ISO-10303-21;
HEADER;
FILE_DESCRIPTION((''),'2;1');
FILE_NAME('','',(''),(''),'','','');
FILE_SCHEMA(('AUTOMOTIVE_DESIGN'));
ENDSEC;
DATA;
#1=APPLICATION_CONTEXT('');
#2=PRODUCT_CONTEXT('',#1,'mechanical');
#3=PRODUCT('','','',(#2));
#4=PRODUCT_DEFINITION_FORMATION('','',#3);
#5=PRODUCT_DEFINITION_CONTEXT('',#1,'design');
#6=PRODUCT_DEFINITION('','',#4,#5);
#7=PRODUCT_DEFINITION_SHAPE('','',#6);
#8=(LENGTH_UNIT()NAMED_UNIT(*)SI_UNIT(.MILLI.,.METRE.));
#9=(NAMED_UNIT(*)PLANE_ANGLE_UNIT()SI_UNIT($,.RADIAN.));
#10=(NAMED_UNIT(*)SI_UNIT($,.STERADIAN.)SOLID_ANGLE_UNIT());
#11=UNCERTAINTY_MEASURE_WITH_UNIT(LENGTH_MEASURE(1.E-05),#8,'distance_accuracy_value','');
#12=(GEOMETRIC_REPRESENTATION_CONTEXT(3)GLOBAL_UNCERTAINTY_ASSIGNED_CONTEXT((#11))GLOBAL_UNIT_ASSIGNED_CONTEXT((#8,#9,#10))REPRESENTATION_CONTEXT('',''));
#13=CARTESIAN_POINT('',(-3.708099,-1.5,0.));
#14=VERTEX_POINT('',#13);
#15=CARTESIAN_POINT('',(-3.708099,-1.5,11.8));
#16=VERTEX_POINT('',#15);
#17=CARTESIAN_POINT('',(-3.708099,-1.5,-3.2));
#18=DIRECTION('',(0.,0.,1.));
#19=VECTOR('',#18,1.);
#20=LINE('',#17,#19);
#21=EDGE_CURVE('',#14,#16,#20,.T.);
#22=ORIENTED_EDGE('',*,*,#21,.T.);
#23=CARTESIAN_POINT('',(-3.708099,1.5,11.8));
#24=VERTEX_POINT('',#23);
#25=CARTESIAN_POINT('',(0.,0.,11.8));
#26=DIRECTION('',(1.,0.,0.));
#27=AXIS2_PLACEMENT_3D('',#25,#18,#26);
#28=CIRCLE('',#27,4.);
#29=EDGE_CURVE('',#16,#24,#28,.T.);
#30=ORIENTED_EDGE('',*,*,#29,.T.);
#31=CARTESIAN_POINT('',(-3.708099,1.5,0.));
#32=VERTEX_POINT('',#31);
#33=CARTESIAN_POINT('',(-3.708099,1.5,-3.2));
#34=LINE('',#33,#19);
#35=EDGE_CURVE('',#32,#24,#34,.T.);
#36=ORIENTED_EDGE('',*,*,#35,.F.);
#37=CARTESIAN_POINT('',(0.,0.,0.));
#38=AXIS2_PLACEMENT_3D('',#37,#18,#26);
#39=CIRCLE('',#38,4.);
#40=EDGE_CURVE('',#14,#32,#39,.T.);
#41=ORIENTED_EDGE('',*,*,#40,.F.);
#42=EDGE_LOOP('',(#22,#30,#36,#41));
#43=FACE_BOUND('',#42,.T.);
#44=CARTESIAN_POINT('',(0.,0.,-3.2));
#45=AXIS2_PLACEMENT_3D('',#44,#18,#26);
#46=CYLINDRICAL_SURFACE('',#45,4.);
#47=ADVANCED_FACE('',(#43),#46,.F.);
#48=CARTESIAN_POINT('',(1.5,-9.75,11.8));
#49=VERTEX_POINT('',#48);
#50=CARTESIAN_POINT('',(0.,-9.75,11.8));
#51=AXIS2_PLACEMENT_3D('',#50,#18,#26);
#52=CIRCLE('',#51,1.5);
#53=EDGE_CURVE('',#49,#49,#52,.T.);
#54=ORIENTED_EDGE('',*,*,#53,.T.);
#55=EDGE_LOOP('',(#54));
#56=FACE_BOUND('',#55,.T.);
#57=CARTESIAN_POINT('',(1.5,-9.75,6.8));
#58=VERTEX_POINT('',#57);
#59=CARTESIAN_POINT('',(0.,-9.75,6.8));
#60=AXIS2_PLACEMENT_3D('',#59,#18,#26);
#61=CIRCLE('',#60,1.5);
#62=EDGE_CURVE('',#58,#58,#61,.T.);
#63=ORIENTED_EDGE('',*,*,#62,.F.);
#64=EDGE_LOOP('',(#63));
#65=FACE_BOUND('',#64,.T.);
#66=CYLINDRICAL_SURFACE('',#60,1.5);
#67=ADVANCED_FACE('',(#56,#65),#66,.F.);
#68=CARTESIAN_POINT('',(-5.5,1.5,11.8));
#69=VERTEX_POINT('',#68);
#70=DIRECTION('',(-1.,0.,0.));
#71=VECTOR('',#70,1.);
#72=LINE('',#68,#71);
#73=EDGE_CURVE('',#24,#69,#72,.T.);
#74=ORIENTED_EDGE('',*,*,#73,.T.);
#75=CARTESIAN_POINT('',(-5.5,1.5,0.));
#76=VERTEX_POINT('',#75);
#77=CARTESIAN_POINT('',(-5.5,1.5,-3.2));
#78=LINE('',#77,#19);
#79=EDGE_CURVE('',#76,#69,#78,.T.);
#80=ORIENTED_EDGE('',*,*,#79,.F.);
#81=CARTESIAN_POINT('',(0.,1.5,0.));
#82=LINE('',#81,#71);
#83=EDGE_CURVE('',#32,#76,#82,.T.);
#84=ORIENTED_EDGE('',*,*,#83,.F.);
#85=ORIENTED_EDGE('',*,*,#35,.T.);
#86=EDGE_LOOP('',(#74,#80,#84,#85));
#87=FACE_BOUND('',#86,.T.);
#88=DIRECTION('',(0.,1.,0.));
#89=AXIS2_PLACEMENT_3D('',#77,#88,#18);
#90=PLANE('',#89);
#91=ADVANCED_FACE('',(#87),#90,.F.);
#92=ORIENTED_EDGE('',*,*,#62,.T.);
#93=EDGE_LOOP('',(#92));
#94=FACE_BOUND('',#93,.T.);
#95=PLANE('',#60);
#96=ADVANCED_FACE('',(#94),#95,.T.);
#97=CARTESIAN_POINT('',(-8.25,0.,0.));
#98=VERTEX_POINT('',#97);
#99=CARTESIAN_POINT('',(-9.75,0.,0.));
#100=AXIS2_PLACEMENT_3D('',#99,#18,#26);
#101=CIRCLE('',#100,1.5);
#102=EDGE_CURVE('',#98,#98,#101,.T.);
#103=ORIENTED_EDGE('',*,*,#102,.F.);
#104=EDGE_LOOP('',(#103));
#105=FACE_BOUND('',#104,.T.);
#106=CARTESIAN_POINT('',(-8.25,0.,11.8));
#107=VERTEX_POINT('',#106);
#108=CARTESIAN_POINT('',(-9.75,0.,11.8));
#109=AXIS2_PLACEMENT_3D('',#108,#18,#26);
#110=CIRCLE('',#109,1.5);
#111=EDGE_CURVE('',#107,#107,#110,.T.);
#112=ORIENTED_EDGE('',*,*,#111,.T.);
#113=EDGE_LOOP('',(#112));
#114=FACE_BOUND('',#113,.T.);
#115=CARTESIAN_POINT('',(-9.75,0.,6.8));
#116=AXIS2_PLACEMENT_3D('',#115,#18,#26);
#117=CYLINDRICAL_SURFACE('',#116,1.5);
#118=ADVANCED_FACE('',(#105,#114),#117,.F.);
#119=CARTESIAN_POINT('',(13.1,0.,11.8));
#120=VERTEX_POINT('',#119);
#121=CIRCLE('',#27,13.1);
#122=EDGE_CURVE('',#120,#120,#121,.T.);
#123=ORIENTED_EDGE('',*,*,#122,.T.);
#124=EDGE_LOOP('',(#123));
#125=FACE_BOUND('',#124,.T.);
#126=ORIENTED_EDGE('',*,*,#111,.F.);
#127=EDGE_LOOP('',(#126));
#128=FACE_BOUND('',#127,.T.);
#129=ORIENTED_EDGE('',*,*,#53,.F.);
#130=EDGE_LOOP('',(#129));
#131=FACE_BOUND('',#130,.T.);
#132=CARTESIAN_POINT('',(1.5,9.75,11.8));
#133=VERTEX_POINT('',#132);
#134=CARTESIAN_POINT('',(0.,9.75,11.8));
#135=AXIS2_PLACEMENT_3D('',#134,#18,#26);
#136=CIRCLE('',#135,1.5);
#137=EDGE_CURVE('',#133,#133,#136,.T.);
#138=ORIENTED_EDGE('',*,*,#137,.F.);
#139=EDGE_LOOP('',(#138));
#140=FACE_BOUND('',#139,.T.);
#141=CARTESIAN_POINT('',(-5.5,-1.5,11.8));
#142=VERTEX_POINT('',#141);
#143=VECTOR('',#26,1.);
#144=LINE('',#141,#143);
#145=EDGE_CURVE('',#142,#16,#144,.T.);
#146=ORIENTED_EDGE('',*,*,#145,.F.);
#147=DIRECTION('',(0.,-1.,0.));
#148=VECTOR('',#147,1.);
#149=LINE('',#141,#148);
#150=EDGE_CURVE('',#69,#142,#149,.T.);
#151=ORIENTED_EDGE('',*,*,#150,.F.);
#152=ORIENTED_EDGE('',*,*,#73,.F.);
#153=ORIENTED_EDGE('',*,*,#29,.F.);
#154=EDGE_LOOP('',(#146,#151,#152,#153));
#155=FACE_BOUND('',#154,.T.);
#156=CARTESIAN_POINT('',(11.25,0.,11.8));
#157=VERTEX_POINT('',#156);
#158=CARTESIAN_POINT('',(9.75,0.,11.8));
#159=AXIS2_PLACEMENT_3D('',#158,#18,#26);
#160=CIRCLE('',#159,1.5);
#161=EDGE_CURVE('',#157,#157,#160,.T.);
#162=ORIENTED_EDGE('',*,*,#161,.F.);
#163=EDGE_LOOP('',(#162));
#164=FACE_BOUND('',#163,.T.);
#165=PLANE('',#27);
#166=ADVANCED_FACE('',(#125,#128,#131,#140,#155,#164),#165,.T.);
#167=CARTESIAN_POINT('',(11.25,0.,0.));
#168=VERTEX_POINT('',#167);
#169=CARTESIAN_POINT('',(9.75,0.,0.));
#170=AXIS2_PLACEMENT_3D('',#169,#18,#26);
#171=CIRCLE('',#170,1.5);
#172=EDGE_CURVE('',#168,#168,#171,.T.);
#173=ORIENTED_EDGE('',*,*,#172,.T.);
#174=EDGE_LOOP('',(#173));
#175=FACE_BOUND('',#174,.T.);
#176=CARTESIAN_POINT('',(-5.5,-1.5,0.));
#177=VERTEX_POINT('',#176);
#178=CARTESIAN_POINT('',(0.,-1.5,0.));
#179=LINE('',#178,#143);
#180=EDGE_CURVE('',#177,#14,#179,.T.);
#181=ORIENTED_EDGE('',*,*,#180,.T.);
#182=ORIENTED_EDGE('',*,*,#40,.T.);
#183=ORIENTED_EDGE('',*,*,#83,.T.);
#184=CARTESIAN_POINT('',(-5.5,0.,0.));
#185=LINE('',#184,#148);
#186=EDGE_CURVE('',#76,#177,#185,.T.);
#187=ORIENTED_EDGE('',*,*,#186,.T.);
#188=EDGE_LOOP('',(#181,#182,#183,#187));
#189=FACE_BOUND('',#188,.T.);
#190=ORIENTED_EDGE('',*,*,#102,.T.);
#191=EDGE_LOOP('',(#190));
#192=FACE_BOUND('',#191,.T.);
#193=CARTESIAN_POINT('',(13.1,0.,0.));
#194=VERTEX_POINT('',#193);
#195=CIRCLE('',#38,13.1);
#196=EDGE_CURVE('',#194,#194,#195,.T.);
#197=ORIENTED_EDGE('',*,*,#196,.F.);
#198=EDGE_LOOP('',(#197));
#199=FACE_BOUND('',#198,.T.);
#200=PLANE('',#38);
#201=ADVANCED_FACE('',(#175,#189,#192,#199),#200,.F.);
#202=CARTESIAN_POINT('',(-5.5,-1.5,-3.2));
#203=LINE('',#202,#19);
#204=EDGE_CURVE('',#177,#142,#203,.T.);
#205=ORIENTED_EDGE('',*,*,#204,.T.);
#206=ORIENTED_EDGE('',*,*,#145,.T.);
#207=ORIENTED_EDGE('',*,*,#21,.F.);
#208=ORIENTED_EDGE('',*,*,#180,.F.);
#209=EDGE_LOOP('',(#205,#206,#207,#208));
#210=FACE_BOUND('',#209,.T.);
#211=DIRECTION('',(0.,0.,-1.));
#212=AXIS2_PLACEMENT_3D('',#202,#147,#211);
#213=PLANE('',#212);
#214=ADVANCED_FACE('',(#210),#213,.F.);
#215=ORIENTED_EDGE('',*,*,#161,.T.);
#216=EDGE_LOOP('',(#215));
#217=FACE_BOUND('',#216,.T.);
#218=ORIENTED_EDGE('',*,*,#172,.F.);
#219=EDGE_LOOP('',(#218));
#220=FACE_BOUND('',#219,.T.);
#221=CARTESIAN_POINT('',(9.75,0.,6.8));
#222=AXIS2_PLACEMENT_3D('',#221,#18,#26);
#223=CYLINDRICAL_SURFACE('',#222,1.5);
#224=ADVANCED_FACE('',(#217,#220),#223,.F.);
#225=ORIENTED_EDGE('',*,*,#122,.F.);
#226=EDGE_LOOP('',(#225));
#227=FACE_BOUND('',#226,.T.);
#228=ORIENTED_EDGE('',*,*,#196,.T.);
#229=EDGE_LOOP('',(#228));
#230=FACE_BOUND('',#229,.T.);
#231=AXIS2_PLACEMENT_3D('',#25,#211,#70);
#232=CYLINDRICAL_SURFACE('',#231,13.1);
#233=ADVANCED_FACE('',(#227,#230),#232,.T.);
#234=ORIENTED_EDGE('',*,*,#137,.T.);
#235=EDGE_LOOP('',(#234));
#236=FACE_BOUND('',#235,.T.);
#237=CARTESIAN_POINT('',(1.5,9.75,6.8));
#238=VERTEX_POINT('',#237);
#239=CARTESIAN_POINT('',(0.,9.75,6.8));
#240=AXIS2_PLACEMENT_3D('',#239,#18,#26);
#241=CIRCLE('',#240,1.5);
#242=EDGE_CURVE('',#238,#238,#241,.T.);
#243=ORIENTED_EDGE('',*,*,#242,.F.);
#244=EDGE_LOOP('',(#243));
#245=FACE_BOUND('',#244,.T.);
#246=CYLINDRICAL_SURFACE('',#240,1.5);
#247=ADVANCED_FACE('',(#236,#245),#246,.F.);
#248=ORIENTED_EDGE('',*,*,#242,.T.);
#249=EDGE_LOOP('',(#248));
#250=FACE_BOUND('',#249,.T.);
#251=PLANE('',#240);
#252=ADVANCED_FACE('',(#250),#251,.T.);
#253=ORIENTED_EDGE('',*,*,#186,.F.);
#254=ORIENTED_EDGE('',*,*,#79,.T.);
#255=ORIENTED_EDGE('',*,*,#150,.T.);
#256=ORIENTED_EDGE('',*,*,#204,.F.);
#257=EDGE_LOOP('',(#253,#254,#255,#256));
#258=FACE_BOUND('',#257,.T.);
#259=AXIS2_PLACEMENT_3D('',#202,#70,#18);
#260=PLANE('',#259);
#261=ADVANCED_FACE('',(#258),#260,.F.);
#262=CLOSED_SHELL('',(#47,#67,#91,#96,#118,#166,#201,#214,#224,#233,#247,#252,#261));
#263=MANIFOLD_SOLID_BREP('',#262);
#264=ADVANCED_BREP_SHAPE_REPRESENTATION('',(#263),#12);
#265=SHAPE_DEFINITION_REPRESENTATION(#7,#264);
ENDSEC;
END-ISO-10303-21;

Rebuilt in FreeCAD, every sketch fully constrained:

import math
import FreeCAD as App
import Part
import Sketcher

doc = App.newDocument("Part")
body = doc.addObject("PartDesign::Body", "Body")

# Sketch on XY plane
sketch1 = body.newObject("Sketcher::SketchObject", "Sketch")
sketch1.AttachmentSupport = (doc.getObject("XY_Plane"), [""])
sketch1.MapMode = "FlatFace"
sketch1.addGeometry(Part.Circle(App.Vector(0, 0, 0), App.Vector(0, 0, 1), 13), False)
sketch1.addConstraint([
    Sketcher.Constraint("Coincident", 0, 3, -1, 1),
    Sketcher.Constraint("Diameter", 0, 26.2),
])
pad1 = body.newObject("PartDesign::Pad", "Pad")
pad1.Profile = sketch1
pad1.Length = 11.8

# Sketch on XY plane
sketch2 = body.newObject("Sketcher::SketchObject", "Sketch001")
sketch2.AttachmentSupport = (doc.getObject("XY_Plane"), [""])
sketch2.MapMode = "FlatFace"
sketch2.AttachmentOffset = App.Placement(App.Vector(0, 0, 11.8), App.Rotation())
sketch2.addGeometry([
    Part.Circle(App.Vector(-9.8, 0, 0), App.Vector(0, 0, 1), 1.5),
    Part.Circle(App.Vector(0, 9.8, 0), App.Vector(0, 0, 1), 1.5),
    Part.Circle(App.Vector(9.8, 0, 0), App.Vector(0, 0, 1), 1.5),
    Part.Circle(App.Vector(0, -9.8, 0), App.Vector(0, 0, 1), 1.5),
], False)
sketch2.addConstraint([
    Sketcher.Constraint("Equal", 0, 1),
    Sketcher.Constraint("Equal", 1, 2),
    Sketcher.Constraint("Equal", 2, 3),
    Sketcher.Constraint("Symmetric", 0, 3, 2, 3, -1, 1),
    Sketcher.Constraint("Symmetric", 1, 3, 3, 3, -1, 1),
    Sketcher.Constraint("PointOnObject", 0, 3, -1),
    Sketcher.Constraint("PointOnObject", 1, 3, -2),
    Sketcher.Constraint("Diameter", 0, 3.0),
    Sketcher.Constraint("DistanceX", 0, 3, 2, 3, 19.5),
    Sketcher.Constraint("DistanceY", 3, 3, 1, 3, 19.5),
])
pocket1 = body.newObject("PartDesign::Pocket", "Pocket")
pocket1.Profile = sketch2
pocket1.Length = 5

# Sketch on XY plane
sketch3 = body.newObject("Sketcher::SketchObject", "Sketch002")
sketch3.AttachmentSupport = (doc.getObject("XY_Plane"), [""])
sketch3.MapMode = "FlatFace"
sketch3.AttachmentOffset = App.Placement(App.Vector(0, 0, 11.8), App.Rotation())
sketch3.addGeometry([
    Part.Circle(App.Vector(-9.8, 0, 0), App.Vector(0, 0, 1), 1.5),  # 0
    Part.Circle(App.Vector(9.8, 0, 0), App.Vector(0, 0, 1), 1.5),  # 1
    Part.LineSegment(App.Vector(-5.5, 1.5, 0), App.Vector(-5.5, -1.5, 0)),  # 2
    Part.LineSegment(App.Vector(-5.5, -1.5, 0), App.Vector(-3.7, -1.5, 0)),  # 3
    Part.ArcOfCircle(Part.Circle(App.Vector(0, 0, 0), App.Vector(0, 0, 1), 4), math.radians(-158), math.radians(158)),  # 4
    Part.LineSegment(App.Vector(-3.7, 1.5, 0), App.Vector(-5.5, 1.5, 0)),  # 5
], False)
sketch3.addConstraint([
    Sketcher.Constraint("Coincident", 2, 2, 3, 1),
    Sketcher.Constraint("Coincident", 3, 2, 4, 1),
    Sketcher.Constraint("Coincident", 4, 2, 5, 1),
    Sketcher.Constraint("Coincident", 5, 2, 2, 1),
    Sketcher.Constraint("Vertical", 2),
    Sketcher.Constraint("Horizontal", 3),
    Sketcher.Constraint("Horizontal", 5),
    Sketcher.Constraint("Coincident", 4, 3, -1, 1),
    Sketcher.Constraint("Equal", 0, 1),
    Sketcher.Constraint("Symmetric", 0, 3, 1, 3, -1, 1),
    Sketcher.Constraint("PointOnObject", 0, 3, -1),
    Sketcher.Constraint("Vertical", 3, 2, 4, 2),
    Sketcher.Constraint("Diameter", 0, 3.0),
    Sketcher.Constraint("Radius", 4, 4.0),
    Sketcher.Constraint("DistanceY", 2, 2, 2, 1, 3.0),
    Sketcher.Constraint("DistanceX", 2, 2, -1, 1, 5.5),
    Sketcher.Constraint("DistanceX", 0, 3, 1, 3, 19.5),
])
pocket2 = body.newObject("PartDesign::Pocket", "Pocket001")
pocket2.Profile = sketch3
pocket2.Length = 15

doc.recompute()
